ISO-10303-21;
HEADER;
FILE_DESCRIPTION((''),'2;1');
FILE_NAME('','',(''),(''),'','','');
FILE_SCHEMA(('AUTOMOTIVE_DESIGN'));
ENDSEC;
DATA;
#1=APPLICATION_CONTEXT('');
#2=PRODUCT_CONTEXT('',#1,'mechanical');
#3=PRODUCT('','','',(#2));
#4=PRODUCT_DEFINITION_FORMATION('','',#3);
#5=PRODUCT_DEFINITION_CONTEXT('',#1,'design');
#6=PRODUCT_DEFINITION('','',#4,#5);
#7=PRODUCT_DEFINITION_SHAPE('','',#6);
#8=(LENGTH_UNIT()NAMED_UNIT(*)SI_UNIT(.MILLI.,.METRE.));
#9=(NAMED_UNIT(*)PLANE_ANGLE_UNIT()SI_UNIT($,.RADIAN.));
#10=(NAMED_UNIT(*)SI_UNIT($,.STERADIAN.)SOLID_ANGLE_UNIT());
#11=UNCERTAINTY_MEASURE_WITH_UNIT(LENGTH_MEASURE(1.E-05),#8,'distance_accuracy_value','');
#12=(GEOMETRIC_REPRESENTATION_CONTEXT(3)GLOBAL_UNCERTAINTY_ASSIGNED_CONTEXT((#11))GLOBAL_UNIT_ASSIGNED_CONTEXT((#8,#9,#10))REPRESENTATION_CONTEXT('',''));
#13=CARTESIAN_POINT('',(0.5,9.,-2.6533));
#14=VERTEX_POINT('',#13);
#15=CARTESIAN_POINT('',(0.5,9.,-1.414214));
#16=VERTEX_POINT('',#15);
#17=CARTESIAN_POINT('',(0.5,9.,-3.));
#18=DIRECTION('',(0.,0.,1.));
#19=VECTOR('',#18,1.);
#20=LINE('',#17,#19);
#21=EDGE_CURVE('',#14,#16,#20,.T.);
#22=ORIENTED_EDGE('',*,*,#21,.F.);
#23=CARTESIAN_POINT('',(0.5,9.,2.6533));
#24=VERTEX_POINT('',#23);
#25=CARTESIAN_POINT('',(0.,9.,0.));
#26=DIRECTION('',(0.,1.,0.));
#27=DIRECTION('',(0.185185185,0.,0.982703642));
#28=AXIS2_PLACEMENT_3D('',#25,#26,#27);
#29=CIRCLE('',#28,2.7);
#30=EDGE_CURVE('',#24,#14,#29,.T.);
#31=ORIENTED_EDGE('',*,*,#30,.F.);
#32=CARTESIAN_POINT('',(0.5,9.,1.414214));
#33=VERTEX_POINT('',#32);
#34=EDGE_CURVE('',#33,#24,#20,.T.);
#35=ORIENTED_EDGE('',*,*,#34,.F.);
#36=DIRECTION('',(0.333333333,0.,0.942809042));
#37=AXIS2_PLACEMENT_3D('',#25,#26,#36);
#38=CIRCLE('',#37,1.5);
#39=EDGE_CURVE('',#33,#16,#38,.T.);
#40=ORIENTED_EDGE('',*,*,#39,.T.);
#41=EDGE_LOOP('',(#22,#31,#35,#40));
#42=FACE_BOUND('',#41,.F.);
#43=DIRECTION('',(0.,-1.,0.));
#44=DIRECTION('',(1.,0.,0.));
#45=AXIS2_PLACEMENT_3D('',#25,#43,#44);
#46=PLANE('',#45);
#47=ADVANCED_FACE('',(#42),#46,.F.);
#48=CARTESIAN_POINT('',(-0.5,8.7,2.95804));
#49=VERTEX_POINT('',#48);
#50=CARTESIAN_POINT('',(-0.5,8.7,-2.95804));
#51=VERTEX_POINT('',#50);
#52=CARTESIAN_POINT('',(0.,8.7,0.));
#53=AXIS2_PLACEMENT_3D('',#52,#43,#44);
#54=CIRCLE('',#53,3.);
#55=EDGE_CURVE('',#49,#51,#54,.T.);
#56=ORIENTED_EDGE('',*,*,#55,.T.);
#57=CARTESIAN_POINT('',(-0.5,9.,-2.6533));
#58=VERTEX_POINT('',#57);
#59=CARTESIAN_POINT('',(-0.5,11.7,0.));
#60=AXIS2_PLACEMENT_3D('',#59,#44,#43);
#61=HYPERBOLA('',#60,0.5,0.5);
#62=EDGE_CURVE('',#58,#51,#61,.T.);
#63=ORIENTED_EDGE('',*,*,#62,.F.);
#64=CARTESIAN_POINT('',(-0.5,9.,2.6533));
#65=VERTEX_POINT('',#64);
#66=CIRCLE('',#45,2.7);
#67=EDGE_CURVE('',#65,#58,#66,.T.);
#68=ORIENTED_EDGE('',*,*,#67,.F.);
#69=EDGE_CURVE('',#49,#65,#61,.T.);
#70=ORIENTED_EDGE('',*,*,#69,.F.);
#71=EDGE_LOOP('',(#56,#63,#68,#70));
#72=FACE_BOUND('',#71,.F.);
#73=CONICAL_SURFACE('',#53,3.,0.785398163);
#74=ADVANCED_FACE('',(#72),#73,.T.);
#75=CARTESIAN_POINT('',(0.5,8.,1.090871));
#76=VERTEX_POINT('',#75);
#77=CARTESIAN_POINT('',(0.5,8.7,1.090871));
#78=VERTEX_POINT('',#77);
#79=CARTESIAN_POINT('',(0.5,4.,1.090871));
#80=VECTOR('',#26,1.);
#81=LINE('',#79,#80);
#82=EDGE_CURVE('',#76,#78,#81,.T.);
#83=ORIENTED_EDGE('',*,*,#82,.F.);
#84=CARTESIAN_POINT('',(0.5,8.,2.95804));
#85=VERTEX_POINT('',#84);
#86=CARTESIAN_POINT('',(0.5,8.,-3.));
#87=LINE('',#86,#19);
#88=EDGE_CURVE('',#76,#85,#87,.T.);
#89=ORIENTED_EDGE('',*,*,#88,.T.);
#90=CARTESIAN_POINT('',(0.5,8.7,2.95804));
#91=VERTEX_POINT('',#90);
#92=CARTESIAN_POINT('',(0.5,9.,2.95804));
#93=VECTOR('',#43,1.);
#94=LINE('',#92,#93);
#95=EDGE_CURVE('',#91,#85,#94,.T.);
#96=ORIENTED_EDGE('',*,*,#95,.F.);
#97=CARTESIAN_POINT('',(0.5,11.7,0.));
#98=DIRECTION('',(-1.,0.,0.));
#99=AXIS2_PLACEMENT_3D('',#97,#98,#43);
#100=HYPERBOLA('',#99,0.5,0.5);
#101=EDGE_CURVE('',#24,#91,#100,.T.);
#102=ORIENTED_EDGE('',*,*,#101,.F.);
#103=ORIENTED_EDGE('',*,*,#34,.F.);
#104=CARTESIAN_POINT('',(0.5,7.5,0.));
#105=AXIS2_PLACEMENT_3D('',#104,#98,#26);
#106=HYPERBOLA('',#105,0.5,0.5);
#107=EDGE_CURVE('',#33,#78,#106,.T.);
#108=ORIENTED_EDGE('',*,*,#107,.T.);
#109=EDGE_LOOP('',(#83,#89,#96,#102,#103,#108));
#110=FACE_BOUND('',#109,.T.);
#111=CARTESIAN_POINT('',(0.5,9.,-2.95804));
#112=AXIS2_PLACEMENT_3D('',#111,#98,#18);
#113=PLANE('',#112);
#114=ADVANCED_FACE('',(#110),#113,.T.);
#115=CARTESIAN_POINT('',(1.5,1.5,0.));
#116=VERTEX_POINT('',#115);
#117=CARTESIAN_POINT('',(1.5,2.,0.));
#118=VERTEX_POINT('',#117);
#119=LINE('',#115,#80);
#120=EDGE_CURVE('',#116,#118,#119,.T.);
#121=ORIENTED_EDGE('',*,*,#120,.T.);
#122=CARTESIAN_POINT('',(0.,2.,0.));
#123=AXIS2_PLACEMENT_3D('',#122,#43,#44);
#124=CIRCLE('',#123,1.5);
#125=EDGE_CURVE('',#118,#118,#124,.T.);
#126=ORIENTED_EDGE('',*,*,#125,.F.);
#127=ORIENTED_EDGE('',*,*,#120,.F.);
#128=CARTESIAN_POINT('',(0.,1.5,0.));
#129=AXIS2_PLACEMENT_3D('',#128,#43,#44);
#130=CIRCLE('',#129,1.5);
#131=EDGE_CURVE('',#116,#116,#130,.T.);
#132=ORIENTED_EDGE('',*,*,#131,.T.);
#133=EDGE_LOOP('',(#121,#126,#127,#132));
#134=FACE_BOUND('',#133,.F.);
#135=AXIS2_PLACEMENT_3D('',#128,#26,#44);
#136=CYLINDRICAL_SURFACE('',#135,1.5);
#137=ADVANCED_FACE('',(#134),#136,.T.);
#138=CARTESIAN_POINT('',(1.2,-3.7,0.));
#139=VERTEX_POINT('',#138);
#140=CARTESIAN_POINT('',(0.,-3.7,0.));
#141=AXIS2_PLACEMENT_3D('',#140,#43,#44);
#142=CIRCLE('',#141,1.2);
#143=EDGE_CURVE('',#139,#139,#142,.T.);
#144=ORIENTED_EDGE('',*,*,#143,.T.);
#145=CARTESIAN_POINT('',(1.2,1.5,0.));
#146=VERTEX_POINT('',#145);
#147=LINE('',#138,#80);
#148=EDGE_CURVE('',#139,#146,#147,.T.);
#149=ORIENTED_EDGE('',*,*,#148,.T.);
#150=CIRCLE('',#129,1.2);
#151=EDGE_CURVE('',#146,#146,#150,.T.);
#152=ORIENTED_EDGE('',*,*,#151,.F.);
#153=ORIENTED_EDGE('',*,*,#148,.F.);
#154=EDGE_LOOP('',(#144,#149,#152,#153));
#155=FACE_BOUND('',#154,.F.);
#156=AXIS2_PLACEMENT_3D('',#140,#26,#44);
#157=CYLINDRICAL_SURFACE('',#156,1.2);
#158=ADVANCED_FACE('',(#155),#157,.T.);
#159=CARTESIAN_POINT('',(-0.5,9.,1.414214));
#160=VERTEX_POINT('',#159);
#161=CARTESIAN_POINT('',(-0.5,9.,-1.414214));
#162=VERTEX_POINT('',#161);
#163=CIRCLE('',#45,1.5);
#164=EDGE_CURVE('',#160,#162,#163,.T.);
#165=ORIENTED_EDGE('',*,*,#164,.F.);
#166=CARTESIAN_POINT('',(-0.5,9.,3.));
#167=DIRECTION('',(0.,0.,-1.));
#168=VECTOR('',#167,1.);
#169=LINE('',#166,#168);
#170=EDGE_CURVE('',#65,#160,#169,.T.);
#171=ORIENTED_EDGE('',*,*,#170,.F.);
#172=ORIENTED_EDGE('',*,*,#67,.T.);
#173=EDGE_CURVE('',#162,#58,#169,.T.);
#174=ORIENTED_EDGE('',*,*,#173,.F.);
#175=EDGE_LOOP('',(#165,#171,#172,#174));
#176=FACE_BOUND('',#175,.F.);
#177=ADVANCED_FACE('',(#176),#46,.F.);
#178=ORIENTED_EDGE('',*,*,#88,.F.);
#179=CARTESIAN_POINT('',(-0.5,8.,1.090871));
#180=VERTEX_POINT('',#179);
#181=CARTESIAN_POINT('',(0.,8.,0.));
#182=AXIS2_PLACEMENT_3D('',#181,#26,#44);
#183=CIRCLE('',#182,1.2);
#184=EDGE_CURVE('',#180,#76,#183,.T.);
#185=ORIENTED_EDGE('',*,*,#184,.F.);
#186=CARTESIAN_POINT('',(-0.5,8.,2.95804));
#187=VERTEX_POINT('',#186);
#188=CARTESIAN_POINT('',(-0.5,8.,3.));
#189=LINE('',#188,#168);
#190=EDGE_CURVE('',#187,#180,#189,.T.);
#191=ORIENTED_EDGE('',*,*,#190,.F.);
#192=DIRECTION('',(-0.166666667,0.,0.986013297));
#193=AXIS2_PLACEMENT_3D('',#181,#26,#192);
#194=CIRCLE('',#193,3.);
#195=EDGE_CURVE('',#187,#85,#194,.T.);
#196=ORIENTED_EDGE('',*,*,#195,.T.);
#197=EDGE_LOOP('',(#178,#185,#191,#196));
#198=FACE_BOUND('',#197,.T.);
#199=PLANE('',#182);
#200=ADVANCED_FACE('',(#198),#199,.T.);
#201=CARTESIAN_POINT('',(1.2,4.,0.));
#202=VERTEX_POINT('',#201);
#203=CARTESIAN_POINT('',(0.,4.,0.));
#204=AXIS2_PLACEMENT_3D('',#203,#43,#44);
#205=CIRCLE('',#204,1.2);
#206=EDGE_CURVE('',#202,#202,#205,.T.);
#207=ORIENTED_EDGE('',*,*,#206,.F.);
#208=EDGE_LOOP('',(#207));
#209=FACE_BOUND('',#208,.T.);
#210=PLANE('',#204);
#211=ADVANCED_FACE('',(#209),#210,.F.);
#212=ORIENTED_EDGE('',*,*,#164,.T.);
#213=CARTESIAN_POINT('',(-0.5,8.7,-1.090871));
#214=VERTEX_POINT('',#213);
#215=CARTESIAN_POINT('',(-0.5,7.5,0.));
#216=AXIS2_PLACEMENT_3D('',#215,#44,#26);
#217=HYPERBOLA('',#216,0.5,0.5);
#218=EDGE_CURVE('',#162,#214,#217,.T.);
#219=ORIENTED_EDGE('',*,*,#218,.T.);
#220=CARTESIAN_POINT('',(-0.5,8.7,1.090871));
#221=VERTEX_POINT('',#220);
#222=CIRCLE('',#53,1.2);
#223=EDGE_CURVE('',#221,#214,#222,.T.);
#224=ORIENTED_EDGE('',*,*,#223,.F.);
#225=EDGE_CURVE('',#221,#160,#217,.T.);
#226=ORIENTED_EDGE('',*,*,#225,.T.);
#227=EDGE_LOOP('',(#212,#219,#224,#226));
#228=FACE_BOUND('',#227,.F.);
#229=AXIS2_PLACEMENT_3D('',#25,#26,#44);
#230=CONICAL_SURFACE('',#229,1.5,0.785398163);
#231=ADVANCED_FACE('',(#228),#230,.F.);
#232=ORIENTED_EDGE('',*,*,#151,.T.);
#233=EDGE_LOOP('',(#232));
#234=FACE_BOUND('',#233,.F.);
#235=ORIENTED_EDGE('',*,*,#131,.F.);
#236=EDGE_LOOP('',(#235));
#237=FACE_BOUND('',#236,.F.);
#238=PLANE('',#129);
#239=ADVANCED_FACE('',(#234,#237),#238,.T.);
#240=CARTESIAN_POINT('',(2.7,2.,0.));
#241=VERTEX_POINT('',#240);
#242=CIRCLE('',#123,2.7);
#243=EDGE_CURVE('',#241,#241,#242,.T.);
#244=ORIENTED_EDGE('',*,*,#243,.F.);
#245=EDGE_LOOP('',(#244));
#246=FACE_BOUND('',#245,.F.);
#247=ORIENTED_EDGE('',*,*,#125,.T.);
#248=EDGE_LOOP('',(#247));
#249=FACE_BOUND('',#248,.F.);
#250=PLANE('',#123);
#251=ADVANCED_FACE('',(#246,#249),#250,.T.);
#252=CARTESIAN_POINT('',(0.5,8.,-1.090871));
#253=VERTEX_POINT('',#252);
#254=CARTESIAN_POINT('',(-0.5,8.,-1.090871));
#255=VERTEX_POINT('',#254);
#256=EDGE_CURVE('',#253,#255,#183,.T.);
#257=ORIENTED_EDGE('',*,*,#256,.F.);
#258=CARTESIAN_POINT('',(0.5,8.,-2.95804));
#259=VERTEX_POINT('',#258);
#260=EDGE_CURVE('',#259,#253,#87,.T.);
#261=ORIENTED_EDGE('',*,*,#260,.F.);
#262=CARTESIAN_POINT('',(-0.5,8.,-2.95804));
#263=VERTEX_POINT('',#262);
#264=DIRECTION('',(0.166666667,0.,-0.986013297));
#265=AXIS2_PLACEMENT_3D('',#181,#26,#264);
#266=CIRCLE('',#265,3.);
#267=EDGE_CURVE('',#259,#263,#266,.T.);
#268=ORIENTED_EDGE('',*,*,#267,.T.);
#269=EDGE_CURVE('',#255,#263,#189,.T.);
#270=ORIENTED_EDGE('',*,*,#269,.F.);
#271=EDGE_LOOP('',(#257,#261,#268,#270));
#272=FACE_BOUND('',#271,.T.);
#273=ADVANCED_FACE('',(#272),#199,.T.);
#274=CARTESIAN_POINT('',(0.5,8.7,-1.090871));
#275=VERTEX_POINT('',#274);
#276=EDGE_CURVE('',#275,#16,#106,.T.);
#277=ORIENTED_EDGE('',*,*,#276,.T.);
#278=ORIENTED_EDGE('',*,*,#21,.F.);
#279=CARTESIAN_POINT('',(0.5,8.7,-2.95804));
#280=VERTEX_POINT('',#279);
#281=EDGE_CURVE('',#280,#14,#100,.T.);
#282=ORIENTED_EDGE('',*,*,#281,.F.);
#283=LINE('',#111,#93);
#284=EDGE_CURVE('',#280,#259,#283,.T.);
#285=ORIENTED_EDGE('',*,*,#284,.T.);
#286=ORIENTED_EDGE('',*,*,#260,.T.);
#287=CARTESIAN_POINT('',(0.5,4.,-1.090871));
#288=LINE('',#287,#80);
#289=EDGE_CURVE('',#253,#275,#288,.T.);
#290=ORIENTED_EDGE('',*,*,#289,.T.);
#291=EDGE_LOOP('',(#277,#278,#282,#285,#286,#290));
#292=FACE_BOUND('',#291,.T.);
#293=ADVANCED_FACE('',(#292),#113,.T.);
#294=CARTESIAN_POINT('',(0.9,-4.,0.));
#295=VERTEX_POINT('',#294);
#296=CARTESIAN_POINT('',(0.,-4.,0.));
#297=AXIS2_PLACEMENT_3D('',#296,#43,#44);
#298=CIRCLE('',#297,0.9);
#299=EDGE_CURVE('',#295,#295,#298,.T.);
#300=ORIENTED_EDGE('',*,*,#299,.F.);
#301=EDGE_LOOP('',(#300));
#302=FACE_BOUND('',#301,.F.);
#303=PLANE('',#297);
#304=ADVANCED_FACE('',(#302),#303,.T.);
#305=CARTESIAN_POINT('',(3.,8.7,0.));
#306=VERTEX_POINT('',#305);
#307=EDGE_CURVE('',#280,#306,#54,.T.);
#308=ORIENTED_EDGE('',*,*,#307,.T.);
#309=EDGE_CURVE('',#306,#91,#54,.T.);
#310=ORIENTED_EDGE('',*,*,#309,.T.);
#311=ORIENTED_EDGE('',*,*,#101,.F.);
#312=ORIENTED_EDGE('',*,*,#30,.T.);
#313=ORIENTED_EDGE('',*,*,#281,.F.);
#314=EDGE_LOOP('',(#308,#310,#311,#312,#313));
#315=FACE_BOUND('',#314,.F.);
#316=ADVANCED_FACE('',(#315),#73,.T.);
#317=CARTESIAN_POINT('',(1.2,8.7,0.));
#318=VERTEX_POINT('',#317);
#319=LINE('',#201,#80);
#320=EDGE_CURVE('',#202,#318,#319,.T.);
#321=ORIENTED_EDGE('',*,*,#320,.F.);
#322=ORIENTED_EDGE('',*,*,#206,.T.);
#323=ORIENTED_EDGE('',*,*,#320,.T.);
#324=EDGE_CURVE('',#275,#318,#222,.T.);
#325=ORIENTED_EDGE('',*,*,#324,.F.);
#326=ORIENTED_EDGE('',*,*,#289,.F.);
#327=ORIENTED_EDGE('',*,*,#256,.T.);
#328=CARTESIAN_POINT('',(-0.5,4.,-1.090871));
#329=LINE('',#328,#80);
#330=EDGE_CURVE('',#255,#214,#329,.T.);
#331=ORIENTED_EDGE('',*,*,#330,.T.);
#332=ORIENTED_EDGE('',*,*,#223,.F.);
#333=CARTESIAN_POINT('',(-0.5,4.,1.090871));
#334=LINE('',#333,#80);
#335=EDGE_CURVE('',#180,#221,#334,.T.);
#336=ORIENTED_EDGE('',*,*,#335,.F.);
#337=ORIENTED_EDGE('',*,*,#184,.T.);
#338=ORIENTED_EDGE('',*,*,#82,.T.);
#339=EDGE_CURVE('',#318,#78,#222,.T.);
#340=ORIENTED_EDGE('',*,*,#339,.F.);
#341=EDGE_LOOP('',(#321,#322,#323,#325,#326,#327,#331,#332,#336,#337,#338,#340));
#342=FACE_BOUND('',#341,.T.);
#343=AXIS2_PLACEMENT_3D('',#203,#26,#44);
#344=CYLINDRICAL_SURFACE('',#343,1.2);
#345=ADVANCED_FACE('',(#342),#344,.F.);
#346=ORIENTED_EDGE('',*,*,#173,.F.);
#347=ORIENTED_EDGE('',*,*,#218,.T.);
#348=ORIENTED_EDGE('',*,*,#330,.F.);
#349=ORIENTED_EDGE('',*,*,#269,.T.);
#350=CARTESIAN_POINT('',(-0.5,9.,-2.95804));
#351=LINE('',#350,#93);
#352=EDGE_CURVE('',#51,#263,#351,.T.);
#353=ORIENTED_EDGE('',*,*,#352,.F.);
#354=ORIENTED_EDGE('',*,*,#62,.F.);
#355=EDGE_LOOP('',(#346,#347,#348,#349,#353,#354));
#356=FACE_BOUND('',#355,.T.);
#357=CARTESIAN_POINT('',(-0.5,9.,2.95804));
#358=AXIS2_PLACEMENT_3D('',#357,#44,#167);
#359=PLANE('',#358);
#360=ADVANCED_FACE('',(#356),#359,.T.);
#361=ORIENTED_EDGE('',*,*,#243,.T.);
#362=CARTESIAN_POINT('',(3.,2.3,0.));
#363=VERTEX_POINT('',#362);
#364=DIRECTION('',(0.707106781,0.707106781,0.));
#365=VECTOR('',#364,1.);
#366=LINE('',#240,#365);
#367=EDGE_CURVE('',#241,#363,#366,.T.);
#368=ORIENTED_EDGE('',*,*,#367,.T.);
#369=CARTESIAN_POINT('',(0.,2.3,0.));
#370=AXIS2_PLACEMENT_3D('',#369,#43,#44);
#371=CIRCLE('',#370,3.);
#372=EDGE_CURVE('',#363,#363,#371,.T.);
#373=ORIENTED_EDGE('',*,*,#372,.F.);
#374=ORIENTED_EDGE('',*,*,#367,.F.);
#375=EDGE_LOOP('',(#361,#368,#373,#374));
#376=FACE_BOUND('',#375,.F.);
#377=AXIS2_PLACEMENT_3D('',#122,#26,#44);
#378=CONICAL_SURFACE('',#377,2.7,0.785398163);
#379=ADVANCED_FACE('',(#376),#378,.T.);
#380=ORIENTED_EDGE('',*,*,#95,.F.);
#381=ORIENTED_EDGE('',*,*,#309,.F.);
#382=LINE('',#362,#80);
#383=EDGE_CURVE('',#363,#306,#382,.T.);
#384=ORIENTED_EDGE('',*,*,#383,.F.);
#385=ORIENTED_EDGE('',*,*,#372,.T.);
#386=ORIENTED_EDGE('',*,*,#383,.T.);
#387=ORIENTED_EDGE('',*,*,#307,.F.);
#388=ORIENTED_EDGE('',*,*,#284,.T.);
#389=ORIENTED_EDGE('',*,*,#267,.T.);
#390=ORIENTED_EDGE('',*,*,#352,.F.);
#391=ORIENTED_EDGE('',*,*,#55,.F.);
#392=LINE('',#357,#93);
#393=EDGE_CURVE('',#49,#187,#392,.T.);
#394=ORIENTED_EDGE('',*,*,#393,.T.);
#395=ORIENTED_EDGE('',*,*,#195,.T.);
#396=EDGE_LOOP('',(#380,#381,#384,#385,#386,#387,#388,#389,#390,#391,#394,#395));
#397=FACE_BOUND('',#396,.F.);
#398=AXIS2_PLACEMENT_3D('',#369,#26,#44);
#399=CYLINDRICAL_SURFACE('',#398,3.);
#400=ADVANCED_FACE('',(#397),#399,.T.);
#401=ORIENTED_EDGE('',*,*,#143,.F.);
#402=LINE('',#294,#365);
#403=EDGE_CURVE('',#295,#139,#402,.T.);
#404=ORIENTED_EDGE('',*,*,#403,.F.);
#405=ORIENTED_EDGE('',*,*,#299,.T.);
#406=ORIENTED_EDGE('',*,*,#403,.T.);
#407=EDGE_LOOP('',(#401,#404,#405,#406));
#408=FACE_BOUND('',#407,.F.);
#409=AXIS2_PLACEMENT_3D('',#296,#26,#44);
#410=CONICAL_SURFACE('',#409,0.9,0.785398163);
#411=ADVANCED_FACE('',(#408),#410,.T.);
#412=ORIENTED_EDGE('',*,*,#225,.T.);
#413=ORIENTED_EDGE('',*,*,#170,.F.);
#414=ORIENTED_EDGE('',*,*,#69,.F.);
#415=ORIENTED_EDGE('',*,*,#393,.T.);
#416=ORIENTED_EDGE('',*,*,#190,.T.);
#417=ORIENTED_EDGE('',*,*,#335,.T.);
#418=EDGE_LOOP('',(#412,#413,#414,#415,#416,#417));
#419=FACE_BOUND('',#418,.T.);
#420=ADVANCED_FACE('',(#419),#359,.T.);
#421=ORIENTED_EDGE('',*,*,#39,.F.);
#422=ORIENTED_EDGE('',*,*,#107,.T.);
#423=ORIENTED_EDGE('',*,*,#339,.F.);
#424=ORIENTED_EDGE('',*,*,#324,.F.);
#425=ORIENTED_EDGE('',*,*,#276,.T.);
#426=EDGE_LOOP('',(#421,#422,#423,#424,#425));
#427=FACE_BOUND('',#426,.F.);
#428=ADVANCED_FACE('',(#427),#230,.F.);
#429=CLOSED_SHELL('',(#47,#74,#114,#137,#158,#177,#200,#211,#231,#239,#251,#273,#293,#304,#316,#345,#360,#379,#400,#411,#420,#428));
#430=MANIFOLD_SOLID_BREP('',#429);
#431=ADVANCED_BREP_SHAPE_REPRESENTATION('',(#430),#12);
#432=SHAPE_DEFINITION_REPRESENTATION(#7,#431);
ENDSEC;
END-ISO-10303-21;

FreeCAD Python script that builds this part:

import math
import FreeCAD as App
import Part
import Sketcher

doc = App.newDocument("Part")
body = doc.addObject("PartDesign::Body", "Body")

# Sketch on XY plane
sketch1 = body.newObject("Sketcher::SketchObject", "Sketch")
sketch1.AttachmentSupport = (doc.getObject("XY_Plane"), [""])
sketch1.MapMode = "FlatFace"
sketch1.addGeometry([
    Part.LineSegment(App.Vector(0, 4, 0), App.Vector(0, -4, 0)),  # 0
    Part.LineSegment(App.Vector(0, -4, 0), App.Vector(0.9, -4, 0)),  # 1
    Part.LineSegment(App.Vector(0.9, -4, 0), App.Vector(1.2, -3.7, 0)),  # 2
    Part.LineSegment(App.Vector(1.2, -3.7, 0), App.Vector(1.2, 1.5, 0)),  # 3
    Part.LineSegment(App.Vector(1.2, 1.5, 0), App.Vector(1.5, 1.5, 0)),  # 4
    Part.LineSegment(App.Vector(1.5, 1.5, 0), App.Vector(1.5, 2, 0)),  # 5
    Part.LineSegment(App.Vector(1.5, 2, 0), App.Vector(2.7, 2, 0)),  # 6
    Part.LineSegment(App.Vector(2.7, 2, 0), App.Vector(3, 2.3, 0)),  # 7
    Part.LineSegment(App.Vector(3, 2.3, 0), App.Vector(3, 8.7, 0)),  # 8
    Part.LineSegment(App.Vector(3, 8.7, 0), App.Vector(2.7, 9, 0)),  # 9
    Part.LineSegment(App.Vector(2.7, 9, 0), App.Vector(1.5, 9, 0)),  # 10
    Part.LineSegment(App.Vector(1.5, 9, 0), App.Vector(1.2, 8.7, 0)),  # 11
    Part.LineSegment(App.Vector(1.2, 8.7, 0), App.Vector(1.2, 4, 0)),  # 12
    Part.LineSegment(App.Vector(1.2, 4, 0), App.Vector(0, 4, 0)),  # 13
], False)
sketch1.addConstraint([
    Sketcher.Constraint("Coincident", 0, 2, 1, 1),
    Sketcher.Constraint("Coincident", 1, 2, 2, 1),
    Sketcher.Constraint("Coincident", 2, 2, 3, 1),
    Sketcher.Constraint("Coincident", 3, 2, 4, 1),
    Sketcher.Constraint("Coincident", 4, 2, 5, 1),
    Sketcher.Constraint("Coincident", 5, 2, 6, 1),
    Sketcher.Constraint("Coincident", 6, 2, 7, 1),
    Sketcher.Constraint("Coincident", 7, 2, 8, 1),
    Sketcher.Constraint("Coincident", 8, 2, 9, 1),
    Sketcher.Constraint("Coincident", 9, 2, 10, 1),
    Sketcher.Constraint("Coincident", 10, 2, 11, 1),
    Sketcher.Constraint("Coincident", 11, 2, 12, 1),
    Sketcher.Constraint("Coincident", 12, 2, 13, 1),
    Sketcher.Constraint("Coincident", 13, 2, 0, 1),
    Sketcher.Constraint("Vertical", 0),
    Sketcher.Constraint("Horizontal", 1),
    Sketcher.Constraint("Vertical", 3),
    Sketcher.Constraint("Horizontal", 4),
    Sketcher.Constraint("Vertical", 5),
    Sketcher.Constraint("Horizontal", 6),
    Sketcher.Constraint("Vertical", 8),
    Sketcher.Constraint("Horizontal", 10),
    Sketcher.Constraint("Vertical", 12),
    Sketcher.Constraint("Horizontal", 13),
    Sketcher.Constraint("Symmetric", 0, 2, 13, 2, -1, 1),
    Sketcher.Constraint("Parallel", 2, 7),
    Sketcher.Constraint("Perpendicular", 7, 9),
    Sketcher.Constraint("Perpendicular", 9, 11),
    Sketcher.Constraint("Horizontal", 8, 2, 11, 2),
    Sketcher.Constraint("Vertical", 6, 2, 9, 2),
    Sketcher.Constraint("Vertical", 5, 2, 10, 2),
    Sketcher.Constraint("Vertical", 3, 2, 11, 2),
    Sketcher.Constraint("Equal", 10, 13),
    Sketcher.Constraint("Equal", 2, 7),
    Sketcher.Constraint("Equal", 7, 9),
    Sketcher.Constraint("DistanceX", 4, 1, 4, 2, 0.3),
    Sketcher.Constraint("DistanceY", 5, 1, 5, 2, 0.5),
    Sketcher.Constraint("DistanceX", -1, 1, 7, 2, 3.0),
    Sketcher.Constraint("DistanceY", 1, 2, 5, 2, 6.0),
    Sketcher.Constraint("DistanceY", 6, 2, 9, 2, 7.0),
    Sketcher.Constraint("DistanceY", 0, 2, 0, 1, 8.0),
])
revolution = body.newObject("PartDesign::Revolution", "Revolution")
revolution.Profile = sketch1
revolution.ReferenceAxis = (sketch1, ["V_Axis"])
revolution.Angle = 360

# Sketch on XZ plane
sketch2 = body.newObject("Sketcher::SketchObject", "Sketch001")
sketch2.AttachmentSupport = (doc.getObject("XZ_Plane"), [""])
sketch2.MapMode = "FlatFace"
sketch2.AttachmentOffset = App.Placement(App.Vector(0, 0, -9), App.Rotation())
sketch2.addGeometry([
    Part.ArcOfCircle(Part.Circle(App.Vector(0, 0, 0), App.Vector(0, 0, 1), 3), math.radians(-99.59), math.radians(-80.41)),
    Part.LineSegment(App.Vector(-0.5, -3, 0), App.Vector(-0.5, 3, 0)),
    Part.ArcOfCircle(Part.Circle(App.Vector(0, 0, 0), App.Vector(0, 0, 1), 3), math.radians(80.41), math.radians(99.59)),
    Part.LineSegment(App.Vector(0.5, 3, 0), App.Vector(0.5, -3, 0)),
], False)
sketch2.addConstraint([
    Sketcher.Constraint("Coincident", 0, 1, 1, 1),
    Sketcher.Constraint("Coincident", 1, 2, 2, 2),
    Sketcher.Constraint("Coincident", 2, 1, 3, 1),
    Sketcher.Constraint("Coincident", 3, 2, 0, 2),
    Sketcher.Constraint("Vertical", 1),
    Sketcher.Constraint("Vertical", 3),
    Sketcher.Constraint("Coincident", 0, 3, -1, 1),
    Sketcher.Constraint("Coincident", 2, 3, -1, 1),
    Sketcher.Constraint("Equal", 0, 2),
    Sketcher.Constraint("Horizontal", 1, 2, 2, 1),
    Sketcher.Constraint("Radius", 0, 3.0),
    Sketcher.Constraint("DistanceX", 1, 2, 2, 1, 1.0),
])
pocket1 = body.newObject("PartDesign::Pocket", "Pocket")
pocket1.Profile = sketch2
pocket1.Length = 1
pocket1.Reversed = True

doc.recompute()
